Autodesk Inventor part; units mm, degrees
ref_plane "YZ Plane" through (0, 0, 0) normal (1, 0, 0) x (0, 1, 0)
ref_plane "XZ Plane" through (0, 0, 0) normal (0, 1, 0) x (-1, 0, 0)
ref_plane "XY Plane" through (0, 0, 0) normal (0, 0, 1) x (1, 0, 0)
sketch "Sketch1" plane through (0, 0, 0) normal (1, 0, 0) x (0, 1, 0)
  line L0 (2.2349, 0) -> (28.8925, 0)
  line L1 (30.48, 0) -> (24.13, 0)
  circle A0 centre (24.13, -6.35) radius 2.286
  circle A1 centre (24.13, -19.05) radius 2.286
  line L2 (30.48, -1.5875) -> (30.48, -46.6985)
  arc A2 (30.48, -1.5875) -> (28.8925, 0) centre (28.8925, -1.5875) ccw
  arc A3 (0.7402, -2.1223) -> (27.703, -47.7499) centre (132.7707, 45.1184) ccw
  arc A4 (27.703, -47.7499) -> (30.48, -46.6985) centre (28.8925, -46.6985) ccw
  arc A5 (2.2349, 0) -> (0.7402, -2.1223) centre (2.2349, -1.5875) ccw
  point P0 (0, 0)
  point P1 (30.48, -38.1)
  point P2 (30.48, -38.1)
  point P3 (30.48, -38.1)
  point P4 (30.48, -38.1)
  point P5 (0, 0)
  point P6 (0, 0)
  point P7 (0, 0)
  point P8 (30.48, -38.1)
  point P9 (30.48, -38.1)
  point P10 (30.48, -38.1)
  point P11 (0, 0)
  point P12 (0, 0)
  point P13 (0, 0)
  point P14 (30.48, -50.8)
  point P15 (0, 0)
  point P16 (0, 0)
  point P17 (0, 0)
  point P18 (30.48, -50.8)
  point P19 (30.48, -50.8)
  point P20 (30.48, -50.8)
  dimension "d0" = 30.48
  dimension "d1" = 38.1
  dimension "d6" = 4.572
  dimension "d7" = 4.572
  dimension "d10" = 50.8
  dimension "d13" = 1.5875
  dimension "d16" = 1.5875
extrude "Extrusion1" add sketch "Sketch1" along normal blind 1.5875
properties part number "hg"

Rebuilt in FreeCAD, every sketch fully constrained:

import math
import FreeCAD as App
import Part
import Sketcher
from FreeCAD import Vector
Q = App.Units.Quantity

doc = App.newDocument("Part")
body = doc.addObject("PartDesign::Body", "Body")

sketch1 = doc.addObject("Sketcher::SketchObject", "Sketch")
body.addObject(sketch1)
sketch1.AttachmentSupport = (doc.YZ_Plane, [""])
sketch1.MapMode = "FlatFace"
sketch1.addGeometry([
    Part.LineSegment(Vector(28.9, 0, 0), Vector(2.2, 0, 0)),
    Part.ArcOfCircle(Part.Circle(Vector(2.2, -1.6, 0), Vector(0, 0, 1), 1.6), math.radians(90), math.radians(200)),
    Part.ArcOfCircle(Part.Circle(Vector(132.8, 45.1, 0), Vector(0, 0, 1), 140.2), math.radians(-160), math.radians(-139)),
    Part.ArcOfCircle(Part.Circle(Vector(28.9, -46.7, 0), Vector(0, 0, 1), 1.6), math.radians(-139), math.radians(0)),
    Part.LineSegment(Vector(30.5, -46.7, 0), Vector(30.5, -1.6, 0)),
    Part.ArcOfCircle(Part.Circle(Vector(28.9, -1.6, 0), Vector(0, 0, 1), 1.6), math.radians(0), math.radians(90)),
    Part.Circle(Vector(24.1, -19.1, 0), Vector(0, 0, 1), 2.3),
    Part.Circle(Vector(24.1, -6.3, 0), Vector(0, 0, 1), 2.3),
], False)
sketch1.addConstraint([
    Sketcher.Constraint("Tangent", 0, 2, 1, 1),
    Sketcher.Constraint("Tangent", 1, 2, 2, 1),
    Sketcher.Constraint("Tangent", 2, 2, 3, 1),
    Sketcher.Constraint("Tangent", 3, 2, 4, 1),
    Sketcher.Constraint("Tangent", 4, 2, 5, 1),
    Sketcher.Constraint("Tangent", 5, 2, 0, 1),
    Sketcher.Constraint("Horizontal", 0),
    Sketcher.Constraint("Vertical", 4),
    Sketcher.Constraint("Equal", 1, 3),
    Sketcher.Constraint("Equal", 3, 5),
    Sketcher.Constraint("Equal", 6, 7),
    Sketcher.Constraint("PointOnObject", 0, 2, -1),
    Sketcher.Constraint("Vertical", 6, 3, 7, 3),
    Sketcher.Constraint("Diameter", 6, Q("0.18 in")),
    Sketcher.Constraint("Radius", 1, Q("0.0625 in")),
    Sketcher.Constraint("DistanceX", -1, 1, 3, 2, Q("1.2 in")),
    Sketcher.Constraint("DistanceY", 6, 3, 7, 3, Q("0.5 in")),
    Sketcher.Constraint("DistanceX", -1, 1, 6, 3, Q("0.95 in")),
    Sketcher.Constraint("DistanceY", 6, 3, -1, 1, Q("0.75 in")),
    Sketcher.Constraint("Radius", 2, Q("140.2274 mm")),
    Sketcher.Constraint("DistanceX", 0, 2, 0, 1, Q("1.0495 in")),
    Sketcher.Constraint("DistanceY", 4, 1, 4, 2, Q("45.111 mm")),
])
pad1 = doc.addObject("PartDesign::Pad", "Pad")
body.addObject(pad1)
pad1.Profile = sketch1
pad1.Length = Q("0.0625 in")

doc.recompute()
